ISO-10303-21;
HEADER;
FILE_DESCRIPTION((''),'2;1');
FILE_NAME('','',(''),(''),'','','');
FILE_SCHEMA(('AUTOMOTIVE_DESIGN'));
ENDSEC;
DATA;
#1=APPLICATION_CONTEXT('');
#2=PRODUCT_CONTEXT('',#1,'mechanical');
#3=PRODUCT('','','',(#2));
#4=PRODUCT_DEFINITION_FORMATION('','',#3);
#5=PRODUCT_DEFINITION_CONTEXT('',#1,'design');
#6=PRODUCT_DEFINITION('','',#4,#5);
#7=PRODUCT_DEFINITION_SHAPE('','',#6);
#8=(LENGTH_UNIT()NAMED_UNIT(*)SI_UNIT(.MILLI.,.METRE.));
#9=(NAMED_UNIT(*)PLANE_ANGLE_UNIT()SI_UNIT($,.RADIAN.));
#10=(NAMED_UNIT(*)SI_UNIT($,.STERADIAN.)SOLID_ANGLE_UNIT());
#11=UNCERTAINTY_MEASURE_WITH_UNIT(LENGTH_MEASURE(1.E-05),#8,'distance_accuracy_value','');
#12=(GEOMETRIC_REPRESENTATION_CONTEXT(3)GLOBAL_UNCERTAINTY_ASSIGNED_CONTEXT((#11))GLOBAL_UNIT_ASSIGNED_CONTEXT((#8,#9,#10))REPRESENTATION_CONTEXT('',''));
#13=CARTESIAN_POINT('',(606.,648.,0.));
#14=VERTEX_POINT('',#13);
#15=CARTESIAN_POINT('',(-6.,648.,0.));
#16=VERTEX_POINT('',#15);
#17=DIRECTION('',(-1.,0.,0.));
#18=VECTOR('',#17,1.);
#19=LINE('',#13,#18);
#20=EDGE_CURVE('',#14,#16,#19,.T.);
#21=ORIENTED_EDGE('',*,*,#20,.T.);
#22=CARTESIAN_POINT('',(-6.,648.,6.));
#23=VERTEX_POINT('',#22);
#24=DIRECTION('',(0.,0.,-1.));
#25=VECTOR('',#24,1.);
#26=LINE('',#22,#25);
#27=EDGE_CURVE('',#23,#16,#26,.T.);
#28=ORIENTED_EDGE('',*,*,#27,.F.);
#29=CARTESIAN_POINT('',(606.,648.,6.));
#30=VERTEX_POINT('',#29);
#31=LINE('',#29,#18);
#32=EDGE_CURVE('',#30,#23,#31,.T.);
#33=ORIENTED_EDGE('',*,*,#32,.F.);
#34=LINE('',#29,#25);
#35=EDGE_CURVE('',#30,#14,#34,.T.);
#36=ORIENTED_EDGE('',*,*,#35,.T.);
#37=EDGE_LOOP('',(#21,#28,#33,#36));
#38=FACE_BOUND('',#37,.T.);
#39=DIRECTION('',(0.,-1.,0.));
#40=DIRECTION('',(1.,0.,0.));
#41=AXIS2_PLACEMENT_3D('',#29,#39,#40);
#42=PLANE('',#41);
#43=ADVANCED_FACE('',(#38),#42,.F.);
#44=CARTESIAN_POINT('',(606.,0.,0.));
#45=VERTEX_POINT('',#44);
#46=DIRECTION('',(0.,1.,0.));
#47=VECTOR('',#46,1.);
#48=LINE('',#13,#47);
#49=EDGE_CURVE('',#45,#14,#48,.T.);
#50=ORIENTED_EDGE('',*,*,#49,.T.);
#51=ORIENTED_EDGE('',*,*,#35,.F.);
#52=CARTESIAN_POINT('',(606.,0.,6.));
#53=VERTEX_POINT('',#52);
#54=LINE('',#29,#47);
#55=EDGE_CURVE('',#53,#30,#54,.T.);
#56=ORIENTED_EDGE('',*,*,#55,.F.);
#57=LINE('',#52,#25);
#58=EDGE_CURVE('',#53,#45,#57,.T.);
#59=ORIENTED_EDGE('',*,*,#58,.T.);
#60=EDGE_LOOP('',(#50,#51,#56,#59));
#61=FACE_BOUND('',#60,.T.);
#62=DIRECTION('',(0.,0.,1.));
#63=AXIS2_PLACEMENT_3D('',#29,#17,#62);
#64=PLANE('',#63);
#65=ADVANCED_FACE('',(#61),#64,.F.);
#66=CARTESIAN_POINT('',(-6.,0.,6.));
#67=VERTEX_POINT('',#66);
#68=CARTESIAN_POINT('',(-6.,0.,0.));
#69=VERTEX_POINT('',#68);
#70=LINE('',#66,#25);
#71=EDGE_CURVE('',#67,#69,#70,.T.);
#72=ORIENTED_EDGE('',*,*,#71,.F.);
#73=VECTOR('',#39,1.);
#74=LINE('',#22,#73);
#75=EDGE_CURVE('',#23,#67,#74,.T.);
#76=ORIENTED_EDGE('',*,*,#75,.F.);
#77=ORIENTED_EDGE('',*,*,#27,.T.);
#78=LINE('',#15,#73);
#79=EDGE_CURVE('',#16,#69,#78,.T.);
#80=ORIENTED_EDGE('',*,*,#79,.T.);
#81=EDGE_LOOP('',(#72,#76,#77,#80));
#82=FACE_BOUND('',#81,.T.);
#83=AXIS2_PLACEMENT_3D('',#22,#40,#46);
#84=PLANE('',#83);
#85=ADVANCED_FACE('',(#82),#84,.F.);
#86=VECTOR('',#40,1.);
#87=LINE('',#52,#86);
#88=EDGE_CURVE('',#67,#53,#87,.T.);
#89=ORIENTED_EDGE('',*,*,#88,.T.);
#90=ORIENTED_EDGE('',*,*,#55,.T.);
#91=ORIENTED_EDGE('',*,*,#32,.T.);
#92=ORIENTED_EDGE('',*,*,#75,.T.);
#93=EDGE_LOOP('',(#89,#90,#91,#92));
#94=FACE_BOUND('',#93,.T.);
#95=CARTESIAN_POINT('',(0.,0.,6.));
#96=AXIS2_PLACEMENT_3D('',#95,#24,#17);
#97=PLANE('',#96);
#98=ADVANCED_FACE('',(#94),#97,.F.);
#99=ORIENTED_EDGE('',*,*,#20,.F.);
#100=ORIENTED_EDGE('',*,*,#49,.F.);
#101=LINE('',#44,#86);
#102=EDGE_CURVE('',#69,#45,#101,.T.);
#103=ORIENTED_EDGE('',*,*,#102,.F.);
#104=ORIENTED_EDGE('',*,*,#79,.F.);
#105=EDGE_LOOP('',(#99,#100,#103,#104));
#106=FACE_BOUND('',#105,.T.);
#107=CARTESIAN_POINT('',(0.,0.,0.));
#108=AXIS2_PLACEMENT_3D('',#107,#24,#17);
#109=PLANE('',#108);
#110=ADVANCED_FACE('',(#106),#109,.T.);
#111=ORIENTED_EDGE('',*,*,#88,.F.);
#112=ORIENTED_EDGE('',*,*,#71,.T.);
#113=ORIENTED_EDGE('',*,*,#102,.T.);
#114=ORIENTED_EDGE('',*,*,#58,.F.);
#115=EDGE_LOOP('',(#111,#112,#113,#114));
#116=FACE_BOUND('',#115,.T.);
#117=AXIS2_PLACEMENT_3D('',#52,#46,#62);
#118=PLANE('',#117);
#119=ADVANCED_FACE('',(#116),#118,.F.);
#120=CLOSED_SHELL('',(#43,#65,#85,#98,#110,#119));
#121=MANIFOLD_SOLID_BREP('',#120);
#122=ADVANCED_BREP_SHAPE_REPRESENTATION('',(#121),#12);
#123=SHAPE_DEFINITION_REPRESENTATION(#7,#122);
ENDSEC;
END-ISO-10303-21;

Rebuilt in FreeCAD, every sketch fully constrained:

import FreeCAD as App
import Part
import Sketcher
from FreeCAD import Vector


def add_polygon(sketch, points):
    """Adds a closed chain of lines whose ends are joined by coincident constraints."""
    first, n = sketch.GeometryCount, len(points)
    for a, b in zip(points, points[1:] + points[:1]):
        sketch.addGeometry(Part.LineSegment(App.Vector(*a, 0), App.Vector(*b, 0)), False)
    for i in range(n):
        sketch.addConstraint(Sketcher.Constraint("Coincident", first + i, 2, first + (i + 1) % n, 1))

doc = App.newDocument("Part")
body = doc.addObject("PartDesign::Body", "Body")

sketch1 = body.newObject("Sketcher::SketchObject", "Sketch")
sketch1.AttachmentSupport = (doc.getObject("XY_Plane"), [""])
sketch1.MapMode = "FlatFace"
add_polygon(sketch1, [(-6, 648), (-6, 0), (606, 0), (606, 648)])
sketch1.addConstraint([
    Sketcher.Constraint("Vertical", 0),
    Sketcher.Constraint("Horizontal", 1),
    Sketcher.Constraint("Vertical", 2),
    Sketcher.Constraint("Horizontal", 3),
    Sketcher.Constraint("PointOnObject", 0, 2, -1),
    Sketcher.Constraint("DistanceX", 1, 1, 1, 2, 612.0),
    Sketcher.Constraint("DistanceY", 0, 2, 0, 1, 648.0),
    Sketcher.Constraint("DistanceX", 0, 2, -1, 1, 6.0),
])
pad1 = body.newObject("PartDesign::Pad", "Pad")
pad1.Profile = sketch1
pad1.Length = 6

doc.recompute()
